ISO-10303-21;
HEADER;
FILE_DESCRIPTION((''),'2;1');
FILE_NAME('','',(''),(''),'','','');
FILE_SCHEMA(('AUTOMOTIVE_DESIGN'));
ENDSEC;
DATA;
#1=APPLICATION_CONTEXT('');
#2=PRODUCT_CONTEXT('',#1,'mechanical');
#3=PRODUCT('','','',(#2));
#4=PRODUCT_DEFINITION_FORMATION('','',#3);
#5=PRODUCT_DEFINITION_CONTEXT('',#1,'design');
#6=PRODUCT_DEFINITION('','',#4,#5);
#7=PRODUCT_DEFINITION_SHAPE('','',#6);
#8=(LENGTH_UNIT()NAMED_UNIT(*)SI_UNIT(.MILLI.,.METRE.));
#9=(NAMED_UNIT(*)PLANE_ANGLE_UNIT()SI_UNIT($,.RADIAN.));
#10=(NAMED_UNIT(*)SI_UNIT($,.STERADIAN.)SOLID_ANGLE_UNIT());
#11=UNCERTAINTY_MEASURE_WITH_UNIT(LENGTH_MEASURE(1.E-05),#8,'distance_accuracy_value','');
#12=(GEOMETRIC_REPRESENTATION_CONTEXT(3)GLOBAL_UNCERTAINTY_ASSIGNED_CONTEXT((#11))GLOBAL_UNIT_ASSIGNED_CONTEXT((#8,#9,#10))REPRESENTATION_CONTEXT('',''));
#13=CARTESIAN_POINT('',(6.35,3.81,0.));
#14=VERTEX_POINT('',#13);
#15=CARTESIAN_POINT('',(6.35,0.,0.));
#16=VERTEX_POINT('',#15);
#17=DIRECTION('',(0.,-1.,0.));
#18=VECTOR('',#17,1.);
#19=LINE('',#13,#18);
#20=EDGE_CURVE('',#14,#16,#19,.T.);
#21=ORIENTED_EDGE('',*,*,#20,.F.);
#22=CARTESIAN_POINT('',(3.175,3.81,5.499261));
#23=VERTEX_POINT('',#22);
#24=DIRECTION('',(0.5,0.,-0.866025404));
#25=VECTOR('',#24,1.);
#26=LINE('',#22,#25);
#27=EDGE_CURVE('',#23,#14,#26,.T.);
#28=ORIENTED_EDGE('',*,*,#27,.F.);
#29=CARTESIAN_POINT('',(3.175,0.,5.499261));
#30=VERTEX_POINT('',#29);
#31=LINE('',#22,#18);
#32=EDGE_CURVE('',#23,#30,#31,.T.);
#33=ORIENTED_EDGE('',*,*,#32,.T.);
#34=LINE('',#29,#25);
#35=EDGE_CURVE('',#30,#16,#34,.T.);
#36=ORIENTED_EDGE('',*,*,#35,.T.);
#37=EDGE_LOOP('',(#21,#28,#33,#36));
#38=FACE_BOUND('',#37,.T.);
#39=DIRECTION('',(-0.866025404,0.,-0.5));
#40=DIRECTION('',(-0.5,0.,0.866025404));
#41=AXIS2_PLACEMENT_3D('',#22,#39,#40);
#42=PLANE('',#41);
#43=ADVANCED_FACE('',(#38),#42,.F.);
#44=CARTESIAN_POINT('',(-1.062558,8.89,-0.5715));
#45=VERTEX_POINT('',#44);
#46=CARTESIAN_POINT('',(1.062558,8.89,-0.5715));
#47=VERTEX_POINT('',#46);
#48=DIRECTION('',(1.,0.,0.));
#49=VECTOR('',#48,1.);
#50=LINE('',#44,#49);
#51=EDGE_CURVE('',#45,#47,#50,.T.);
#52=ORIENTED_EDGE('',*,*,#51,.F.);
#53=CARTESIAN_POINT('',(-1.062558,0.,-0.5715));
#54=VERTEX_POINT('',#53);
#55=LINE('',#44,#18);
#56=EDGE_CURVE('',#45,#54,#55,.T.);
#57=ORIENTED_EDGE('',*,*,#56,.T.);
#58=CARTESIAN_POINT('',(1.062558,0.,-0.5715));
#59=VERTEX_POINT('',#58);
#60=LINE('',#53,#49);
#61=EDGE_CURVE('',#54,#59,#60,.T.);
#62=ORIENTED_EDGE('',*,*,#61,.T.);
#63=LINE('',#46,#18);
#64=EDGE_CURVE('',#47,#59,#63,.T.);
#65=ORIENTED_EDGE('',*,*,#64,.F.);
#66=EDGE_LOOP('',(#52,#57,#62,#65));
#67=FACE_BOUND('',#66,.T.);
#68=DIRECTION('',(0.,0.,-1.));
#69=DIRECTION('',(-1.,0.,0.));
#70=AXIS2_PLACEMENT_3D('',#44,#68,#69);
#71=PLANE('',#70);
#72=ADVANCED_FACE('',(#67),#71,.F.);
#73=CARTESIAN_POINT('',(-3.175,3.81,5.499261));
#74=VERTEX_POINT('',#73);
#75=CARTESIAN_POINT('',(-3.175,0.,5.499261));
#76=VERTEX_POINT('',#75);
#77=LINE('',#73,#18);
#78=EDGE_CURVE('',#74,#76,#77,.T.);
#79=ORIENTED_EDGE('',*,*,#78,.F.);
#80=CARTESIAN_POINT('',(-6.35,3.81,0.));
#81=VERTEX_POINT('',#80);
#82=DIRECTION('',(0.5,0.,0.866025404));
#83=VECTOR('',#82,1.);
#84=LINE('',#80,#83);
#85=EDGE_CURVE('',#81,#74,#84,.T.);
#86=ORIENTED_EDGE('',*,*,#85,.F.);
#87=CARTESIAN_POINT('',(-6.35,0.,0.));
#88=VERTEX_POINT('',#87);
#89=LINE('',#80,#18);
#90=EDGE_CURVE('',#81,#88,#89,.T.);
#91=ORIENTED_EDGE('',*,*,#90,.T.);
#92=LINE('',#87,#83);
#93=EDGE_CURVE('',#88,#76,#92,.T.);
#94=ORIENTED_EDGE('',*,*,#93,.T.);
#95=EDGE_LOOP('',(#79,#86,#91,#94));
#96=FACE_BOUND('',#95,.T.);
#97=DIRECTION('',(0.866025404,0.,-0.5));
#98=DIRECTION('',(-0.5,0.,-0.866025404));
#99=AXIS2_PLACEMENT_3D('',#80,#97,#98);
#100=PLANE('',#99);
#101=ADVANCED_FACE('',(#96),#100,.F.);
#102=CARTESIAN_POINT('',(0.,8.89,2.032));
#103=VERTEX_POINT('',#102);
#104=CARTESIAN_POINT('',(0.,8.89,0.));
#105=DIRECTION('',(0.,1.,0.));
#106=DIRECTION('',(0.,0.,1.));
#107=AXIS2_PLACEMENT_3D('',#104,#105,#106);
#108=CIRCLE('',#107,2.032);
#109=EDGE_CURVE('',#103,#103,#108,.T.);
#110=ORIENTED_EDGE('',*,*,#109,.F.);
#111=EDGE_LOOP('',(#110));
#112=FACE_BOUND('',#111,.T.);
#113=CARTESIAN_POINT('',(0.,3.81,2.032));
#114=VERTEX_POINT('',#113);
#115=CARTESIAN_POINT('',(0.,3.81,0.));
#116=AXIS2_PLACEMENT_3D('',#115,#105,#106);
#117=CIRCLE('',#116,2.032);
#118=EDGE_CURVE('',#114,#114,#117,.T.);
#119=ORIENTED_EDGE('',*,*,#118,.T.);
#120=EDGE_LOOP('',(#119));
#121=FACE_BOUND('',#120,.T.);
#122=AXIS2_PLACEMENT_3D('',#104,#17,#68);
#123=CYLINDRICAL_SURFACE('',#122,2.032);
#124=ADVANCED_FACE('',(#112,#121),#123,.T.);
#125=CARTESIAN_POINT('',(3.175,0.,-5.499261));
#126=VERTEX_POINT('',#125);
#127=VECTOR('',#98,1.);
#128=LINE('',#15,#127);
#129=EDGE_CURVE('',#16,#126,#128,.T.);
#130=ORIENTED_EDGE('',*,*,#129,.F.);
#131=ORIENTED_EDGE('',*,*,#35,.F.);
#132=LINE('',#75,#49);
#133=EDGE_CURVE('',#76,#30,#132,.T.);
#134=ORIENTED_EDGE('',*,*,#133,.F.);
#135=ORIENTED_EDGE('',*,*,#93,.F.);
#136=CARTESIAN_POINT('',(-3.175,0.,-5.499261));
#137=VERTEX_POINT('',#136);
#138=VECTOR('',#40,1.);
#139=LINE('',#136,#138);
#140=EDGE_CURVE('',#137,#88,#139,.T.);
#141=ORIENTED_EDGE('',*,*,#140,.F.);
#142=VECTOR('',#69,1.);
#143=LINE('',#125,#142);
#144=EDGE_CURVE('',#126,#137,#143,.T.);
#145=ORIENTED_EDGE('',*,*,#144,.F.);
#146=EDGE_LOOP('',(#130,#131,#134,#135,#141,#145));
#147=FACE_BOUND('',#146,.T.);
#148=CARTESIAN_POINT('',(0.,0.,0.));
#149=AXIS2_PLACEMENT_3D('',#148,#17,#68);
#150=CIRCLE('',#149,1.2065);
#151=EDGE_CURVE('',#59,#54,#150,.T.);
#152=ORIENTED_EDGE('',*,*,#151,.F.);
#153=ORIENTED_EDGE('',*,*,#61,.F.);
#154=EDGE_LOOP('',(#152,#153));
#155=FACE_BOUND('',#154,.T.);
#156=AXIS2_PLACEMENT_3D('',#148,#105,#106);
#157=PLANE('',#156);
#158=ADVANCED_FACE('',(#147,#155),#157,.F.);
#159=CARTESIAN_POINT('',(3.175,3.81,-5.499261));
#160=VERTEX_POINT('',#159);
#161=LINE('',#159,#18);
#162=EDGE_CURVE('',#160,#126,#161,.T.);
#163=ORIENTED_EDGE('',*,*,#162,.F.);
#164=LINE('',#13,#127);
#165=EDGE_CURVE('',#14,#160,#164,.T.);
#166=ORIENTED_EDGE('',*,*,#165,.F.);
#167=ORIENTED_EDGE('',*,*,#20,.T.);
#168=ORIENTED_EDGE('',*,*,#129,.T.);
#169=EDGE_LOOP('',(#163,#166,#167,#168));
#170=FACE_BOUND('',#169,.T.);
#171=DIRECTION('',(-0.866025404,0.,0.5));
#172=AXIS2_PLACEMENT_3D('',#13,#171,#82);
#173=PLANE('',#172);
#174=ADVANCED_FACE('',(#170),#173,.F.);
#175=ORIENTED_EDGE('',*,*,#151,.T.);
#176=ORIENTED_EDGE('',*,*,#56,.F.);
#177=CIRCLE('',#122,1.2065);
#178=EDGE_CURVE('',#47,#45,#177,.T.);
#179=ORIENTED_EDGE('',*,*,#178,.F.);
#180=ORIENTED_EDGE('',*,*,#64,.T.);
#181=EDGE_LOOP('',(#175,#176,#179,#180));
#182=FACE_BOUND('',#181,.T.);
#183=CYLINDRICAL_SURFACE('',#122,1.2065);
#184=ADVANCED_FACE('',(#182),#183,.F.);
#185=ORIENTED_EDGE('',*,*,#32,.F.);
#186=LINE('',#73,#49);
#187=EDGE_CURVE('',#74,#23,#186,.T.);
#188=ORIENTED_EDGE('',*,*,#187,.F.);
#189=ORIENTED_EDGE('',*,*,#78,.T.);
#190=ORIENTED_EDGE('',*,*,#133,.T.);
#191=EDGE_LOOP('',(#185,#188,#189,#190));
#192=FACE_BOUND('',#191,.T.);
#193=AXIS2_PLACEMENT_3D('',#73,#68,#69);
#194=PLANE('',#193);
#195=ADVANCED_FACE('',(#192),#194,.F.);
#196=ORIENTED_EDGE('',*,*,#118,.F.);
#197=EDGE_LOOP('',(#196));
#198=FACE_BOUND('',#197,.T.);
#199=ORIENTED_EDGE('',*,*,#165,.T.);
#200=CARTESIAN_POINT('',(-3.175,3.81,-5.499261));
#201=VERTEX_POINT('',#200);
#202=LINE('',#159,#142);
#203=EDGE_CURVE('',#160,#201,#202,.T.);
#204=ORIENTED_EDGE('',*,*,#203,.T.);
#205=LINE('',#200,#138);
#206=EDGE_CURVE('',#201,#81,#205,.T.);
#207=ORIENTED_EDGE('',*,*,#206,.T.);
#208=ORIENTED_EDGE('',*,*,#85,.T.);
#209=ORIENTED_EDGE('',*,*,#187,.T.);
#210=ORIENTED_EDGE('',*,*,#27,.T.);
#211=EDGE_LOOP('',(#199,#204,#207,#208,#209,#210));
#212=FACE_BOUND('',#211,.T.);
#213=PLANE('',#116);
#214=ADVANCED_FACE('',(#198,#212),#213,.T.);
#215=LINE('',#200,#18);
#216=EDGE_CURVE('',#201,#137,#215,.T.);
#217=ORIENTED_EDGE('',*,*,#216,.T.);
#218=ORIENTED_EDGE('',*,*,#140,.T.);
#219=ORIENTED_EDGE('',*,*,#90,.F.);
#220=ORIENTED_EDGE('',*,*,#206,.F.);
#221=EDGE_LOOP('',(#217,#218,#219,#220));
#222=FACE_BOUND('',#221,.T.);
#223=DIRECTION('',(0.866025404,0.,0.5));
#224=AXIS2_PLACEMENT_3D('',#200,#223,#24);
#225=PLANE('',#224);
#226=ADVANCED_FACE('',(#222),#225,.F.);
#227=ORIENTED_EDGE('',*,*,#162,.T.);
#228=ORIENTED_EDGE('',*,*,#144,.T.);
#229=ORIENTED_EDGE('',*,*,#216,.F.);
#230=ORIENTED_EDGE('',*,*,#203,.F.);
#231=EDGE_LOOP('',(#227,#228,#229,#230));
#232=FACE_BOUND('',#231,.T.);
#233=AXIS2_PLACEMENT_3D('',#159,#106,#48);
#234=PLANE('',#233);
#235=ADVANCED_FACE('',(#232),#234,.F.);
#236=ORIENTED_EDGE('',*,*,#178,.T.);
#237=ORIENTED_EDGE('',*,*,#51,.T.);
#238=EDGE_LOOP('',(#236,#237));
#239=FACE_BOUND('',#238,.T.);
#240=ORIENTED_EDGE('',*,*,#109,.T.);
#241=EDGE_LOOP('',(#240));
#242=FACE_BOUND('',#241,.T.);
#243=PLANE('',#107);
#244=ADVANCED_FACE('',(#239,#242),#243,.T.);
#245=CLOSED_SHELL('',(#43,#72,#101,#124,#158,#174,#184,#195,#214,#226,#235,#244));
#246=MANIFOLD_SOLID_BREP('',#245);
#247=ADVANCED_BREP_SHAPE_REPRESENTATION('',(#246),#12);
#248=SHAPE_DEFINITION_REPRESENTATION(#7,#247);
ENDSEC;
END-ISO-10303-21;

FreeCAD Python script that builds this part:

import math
import FreeCAD as App
import Part
import Sketcher

V = App.Vector
Q = App.Units.Quantity

doc = App.newDocument("Part")
params = doc.addObject("Spreadsheet::Sheet", "Params")
for row, (alias, value) in enumerate([
    ("sketch1_width", "0.25 in"),
    ("pad1_length", "0.15 in"),
    ("sketch2_diameter", "0.16 in"),
    ("pad2_length", "0.2 in"),
], start=1):
    params.set(f"A{row}", alias)
    params.set(f"B{row}", "=" + value)
    params.setAlias(f"B{row}", alias)

body = doc.addObject("PartDesign::Body", "Body")

sketch1 = doc.addObject("Sketcher::SketchObject", "Sketch")
body.addObject(sketch1)
sketch1.AttachmentSupport = (doc.XZ_Plane, [""])
sketch1.MapMode = "FlatFace"
sketch1.addGeometry([
    Part.LineSegment(V(6, 0, 0), V(3, -5, 0)),
    Part.LineSegment(V(3, -5, 0), V(-3, -5, 0)),
    Part.LineSegment(V(-3, -5, 0), V(-6, 0, 0)),
    Part.LineSegment(V(-6, 0, 0), V(-3, 5, 0)),
    Part.LineSegment(V(-3, 5, 0), V(3, 5, 0)),
    Part.LineSegment(V(3, 5, 0), V(6, 0, 0)),
], False)
sketch1.addConstraint([
    Sketcher.Constraint("Coincident", 0, 2, 1, 1),
    Sketcher.Constraint("Coincident", 1, 2, 2, 1),
    Sketcher.Constraint("Coincident", 2, 2, 3, 1),
    Sketcher.Constraint("Coincident", 3, 2, 4, 1),
    Sketcher.Constraint("Coincident", 4, 2, 5, 1),
    Sketcher.Constraint("Coincident", 5, 2, 0, 1),
    Sketcher.Constraint("Horizontal", 1),
    Sketcher.Constraint("Horizontal", 4),
    Sketcher.Constraint("Symmetric", 0, 2, 3, 2, -1, 1),
    Sketcher.Constraint("Symmetric", 2, 2, 5, 2, -1, 1),
    Sketcher.Constraint("PointOnObject", 2, 2, -1),
    Sketcher.Constraint("Parallel", 2, 5),
    Sketcher.Constraint("Vertical", 1, 2, 3, 2),
    Sketcher.Constraint("Angle", 0, Q("-120 deg")),
    Sketcher.Constraint("DistanceX", 1, 2, 1, 1, Q("0.25 in")),
    Sketcher.Constraint("DistanceX", 2, 2, 5, 2, Q("0.5 in")),
])
sketch1.setExpression("Constraints[14]", "Params.sketch1_width")
pad1 = doc.addObject("PartDesign::Pad", "Pad")
body.addObject(pad1)
pad1.Profile = sketch1
pad1.setExpression("Length", "Params.pad1_length")
pad1.Reversed = True

sketch2 = doc.addObject("Sketcher::SketchObject", "Sketch001")
body.addObject(sketch2)
sketch2.AttachmentSupport = (doc.XZ_Plane, [""])
sketch2.MapMode = "FlatFace"
sketch2.AttachmentOffset = App.Placement(V(0, 0, -0.15 * 25.4), App.Rotation())
sketch2.addGeometry(Part.Circle(V(0, 0, 0), V(0, 0, 1), 2), False)
sketch2.addConstraint([
    Sketcher.Constraint("Coincident", 0, 3, -1, 1),
    Sketcher.Constraint("Diameter", 0, Q("0.16 in")),
])
sketch2.setExpression("Constraints[1]", "Params.sketch2_diameter")
pad2 = doc.addObject("PartDesign::Pad", "Pad001")
body.addObject(pad2)
pad2.Profile = sketch2
pad2.setExpression("Length", "Params.pad2_length")
pad2.Reversed = True

sketch3 = doc.addObject("Sketcher::SketchObject", "Sketch002")
body.addObject(sketch3)
sketch3.AttachmentSupport = (doc.XZ_Plane, [""])
sketch3.MapMode = "FlatFace"
sketch3.addGeometry([
    Part.LineSegment(V(-1.1, -0.6, 0), V(1.1, -0.6, 0)),
    Part.ArcOfCircle(Part.Circle(V(0, 0, 0), V(0, 0, 1), 1.2), math.radians(-28), math.radians(208)),
], False)
sketch3.addConstraint([
    Sketcher.Constraint("Coincident", 0, 1, 1, 2),
    Sketcher.Constraint("Coincident", 1, 1, 0, 2),
    Sketcher.Constraint("Horizontal", 0),
    Sketcher.Constraint("Coincident", 1, 3, -1, 1),
    Sketcher.Constraint("Radius", 1, Q("0.0475 in")),
    Sketcher.Constraint("DistanceY", 0, 1, -1, 1, Q("0.0225 in")),
])
pocket1 = doc.addObject("PartDesign::Pocket", "Pocket")
body.addObject(pocket1)
pocket1.Profile = sketch3
pocket1.Type = "ThroughAll"

doc.recompute()
